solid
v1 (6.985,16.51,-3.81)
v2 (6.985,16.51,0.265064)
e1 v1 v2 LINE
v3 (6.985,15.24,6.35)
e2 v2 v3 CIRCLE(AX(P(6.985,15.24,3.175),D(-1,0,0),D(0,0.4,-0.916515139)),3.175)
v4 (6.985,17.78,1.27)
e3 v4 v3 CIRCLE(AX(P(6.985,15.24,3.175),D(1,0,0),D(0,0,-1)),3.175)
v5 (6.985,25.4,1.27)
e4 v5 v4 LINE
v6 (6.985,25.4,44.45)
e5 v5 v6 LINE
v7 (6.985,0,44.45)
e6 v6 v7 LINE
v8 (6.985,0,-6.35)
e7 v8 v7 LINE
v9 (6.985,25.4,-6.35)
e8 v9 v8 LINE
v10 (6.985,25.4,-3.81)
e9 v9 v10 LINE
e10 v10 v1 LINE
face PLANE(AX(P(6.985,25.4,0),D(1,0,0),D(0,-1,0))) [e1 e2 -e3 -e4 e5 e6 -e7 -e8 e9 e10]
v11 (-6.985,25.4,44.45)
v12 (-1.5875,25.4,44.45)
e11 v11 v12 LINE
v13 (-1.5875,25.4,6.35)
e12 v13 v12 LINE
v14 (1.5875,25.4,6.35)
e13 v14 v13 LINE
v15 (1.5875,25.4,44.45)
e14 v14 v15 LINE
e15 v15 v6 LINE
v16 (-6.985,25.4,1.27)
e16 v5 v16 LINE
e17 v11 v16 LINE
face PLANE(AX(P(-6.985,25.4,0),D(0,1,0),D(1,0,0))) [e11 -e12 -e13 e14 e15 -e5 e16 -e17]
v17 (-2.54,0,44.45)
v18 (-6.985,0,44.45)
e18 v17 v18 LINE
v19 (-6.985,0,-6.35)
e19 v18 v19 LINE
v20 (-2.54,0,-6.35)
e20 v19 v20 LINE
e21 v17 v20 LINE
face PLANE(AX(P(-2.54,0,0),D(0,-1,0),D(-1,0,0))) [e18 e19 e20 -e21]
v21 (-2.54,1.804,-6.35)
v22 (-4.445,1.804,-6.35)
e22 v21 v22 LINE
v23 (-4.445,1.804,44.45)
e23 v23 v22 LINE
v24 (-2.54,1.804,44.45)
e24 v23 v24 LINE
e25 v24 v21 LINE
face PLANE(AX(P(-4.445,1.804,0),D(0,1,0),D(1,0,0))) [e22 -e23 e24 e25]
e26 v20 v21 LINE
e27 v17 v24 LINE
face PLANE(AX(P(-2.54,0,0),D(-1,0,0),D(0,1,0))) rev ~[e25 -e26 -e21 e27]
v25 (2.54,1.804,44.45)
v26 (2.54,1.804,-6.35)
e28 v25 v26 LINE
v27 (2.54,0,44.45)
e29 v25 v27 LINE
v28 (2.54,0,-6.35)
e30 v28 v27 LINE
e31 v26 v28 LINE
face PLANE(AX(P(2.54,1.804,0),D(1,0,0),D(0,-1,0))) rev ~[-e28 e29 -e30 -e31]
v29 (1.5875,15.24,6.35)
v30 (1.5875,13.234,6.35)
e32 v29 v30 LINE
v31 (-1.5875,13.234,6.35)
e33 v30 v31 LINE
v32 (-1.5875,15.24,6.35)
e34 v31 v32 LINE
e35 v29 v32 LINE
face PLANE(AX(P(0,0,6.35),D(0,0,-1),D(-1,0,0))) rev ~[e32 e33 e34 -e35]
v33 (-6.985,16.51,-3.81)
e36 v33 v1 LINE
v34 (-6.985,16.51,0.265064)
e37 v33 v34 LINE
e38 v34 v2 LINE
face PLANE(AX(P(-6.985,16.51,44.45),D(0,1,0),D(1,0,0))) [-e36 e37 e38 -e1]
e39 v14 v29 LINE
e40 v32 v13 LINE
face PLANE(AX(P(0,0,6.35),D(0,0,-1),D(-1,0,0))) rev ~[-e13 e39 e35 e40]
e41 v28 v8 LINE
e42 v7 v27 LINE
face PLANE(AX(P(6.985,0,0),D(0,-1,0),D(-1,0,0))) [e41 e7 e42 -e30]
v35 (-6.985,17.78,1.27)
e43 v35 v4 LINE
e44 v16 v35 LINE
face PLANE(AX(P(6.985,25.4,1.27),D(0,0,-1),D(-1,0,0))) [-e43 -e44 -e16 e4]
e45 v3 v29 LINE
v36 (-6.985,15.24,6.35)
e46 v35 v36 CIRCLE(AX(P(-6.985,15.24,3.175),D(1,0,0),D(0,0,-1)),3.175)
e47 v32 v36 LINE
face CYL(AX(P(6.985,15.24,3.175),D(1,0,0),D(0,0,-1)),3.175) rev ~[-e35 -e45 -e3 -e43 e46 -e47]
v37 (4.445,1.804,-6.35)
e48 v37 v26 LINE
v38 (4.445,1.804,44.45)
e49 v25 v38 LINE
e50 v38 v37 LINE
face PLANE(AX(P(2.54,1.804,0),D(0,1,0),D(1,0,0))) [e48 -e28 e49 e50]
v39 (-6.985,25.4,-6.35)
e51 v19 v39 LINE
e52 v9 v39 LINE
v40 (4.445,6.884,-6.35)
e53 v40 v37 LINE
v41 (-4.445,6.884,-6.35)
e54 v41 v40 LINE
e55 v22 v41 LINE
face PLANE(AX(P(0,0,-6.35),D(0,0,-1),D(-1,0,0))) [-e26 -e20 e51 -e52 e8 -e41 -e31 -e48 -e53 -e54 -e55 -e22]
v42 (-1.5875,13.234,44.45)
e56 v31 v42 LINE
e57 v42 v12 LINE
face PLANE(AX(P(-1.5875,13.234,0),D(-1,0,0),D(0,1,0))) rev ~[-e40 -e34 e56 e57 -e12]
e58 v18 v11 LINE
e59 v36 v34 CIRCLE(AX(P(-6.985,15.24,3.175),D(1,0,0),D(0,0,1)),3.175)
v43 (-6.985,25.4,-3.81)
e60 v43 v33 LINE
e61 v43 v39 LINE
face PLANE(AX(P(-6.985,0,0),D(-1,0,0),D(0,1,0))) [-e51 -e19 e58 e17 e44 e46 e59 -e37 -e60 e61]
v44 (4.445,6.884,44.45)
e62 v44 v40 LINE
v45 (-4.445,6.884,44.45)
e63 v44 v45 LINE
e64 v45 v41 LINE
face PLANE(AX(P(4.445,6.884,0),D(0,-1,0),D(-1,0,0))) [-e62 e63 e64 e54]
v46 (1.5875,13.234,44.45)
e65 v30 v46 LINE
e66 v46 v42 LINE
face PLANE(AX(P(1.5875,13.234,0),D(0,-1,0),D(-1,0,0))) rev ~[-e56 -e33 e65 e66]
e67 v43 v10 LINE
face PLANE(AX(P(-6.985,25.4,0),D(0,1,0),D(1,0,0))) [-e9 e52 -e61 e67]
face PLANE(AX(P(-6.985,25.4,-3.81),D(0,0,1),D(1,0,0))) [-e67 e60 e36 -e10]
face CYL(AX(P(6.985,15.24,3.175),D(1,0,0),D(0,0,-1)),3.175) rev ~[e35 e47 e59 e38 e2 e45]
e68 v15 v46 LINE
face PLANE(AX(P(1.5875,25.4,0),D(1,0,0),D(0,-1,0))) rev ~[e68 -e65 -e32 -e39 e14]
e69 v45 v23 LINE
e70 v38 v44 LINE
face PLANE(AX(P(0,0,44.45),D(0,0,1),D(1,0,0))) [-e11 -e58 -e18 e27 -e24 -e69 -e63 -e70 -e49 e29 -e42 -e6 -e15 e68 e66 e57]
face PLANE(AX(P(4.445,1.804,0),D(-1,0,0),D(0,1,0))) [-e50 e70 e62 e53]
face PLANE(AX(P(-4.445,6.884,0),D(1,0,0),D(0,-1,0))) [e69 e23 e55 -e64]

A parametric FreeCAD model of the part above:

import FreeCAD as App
import Part
import Sketcher

V = App.Vector
Q = App.Units.Quantity

doc = App.newDocument("Part")
body = doc.addObject("PartDesign::Body", "Body")

sketch1 = doc.addObject("Sketcher::SketchObject", "Sketch")
body.addObject(sketch1)
sketch1.AttachmentSupport = (doc.XY_Plane, [""])
sketch1.MapMode = "FlatFace"
sketch1.addGeometry(Part.LineSegment(V(2.5, 1.8, 0), V(2.5, 0, 0)), False)
sketch1.addGeometry(Part.LineSegment(V(2.5, 0, 0), V(7, 0, 0)), False)
sketch1.addGeometry(Part.LineSegment(V(7, 0, 0), V(7, 25.4, 0)), False)
sketch1.addGeometry(Part.LineSegment(V(7, 25.4, 0), V(1.6, 25.4, 0)), False)
sketch1.addGeometry(Part.LineSegment(V(1.6, 25.4, 0), V(1.6, 13.2, 0)), False)
sketch1.addGeometry(Part.LineSegment(V(1.6, 13.2, 0), V(-1.6, 13.2, 0)), False)
sketch1.addGeometry(Part.LineSegment(V(-1.6, 13.2, 0), V(-1.6, 25.4, 0)), False)
sketch1.addGeometry(Part.LineSegment(V(-1.6, 25.4, 0), V(-7, 25.4, 0)), False)
sketch1.addGeometry(Part.LineSegment(V(-7, 25.4, 0), V(-7, 0, 0)), False)
sketch1.addGeometry(Part.LineSegment(V(-7, 0, 0), V(-2.5, 0, 0)), False)
sketch1.addGeometry(Part.LineSegment(V(-2.5, 0, 0), V(-2.5, 1.8, 0)), False)
sketch1.addGeometry(Part.LineSegment(V(-2.5, 1.8, 0), V(-4.4, 1.8, 0)), False)
sketch1.addGeometry(Part.LineSegment(V(-4.4, 1.8, 0), V(-4.4, 6.9, 0)), False)
sketch1.addGeometry(Part.LineSegment(V(-4.4, 6.9, 0), V(4.4, 6.9, 0)), False)
sketch1.addGeometry(Part.LineSegment(V(4.4, 6.9, 0), V(4.4, 1.8, 0)), False)
sketch1.addGeometry(Part.LineSegment(V(4.4, 1.8, 0), V(2.5, 1.8, 0)), False)
sketch1.addConstraint(Sketcher.Constraint("Coincident", 0, 2, 1, 1))
sketch1.addConstraint(Sketcher.Constraint("Coincident", 1, 2, 2, 1))
sketch1.addConstraint(Sketcher.Constraint("Coincident", 2, 2, 3, 1))
sketch1.addConstraint(Sketcher.Constraint("Coincident", 3, 2, 4, 1))
sketch1.addConstraint(Sketcher.Constraint("Coincident", 4, 2, 5, 1))
sketch1.addConstraint(Sketcher.Constraint("Coincident", 5, 2, 6, 1))
sketch1.addConstraint(Sketcher.Constraint("Coincident", 6, 2, 7, 1))
sketch1.addConstraint(Sketcher.Constraint("Coincident", 7, 2, 8, 1))
sketch1.addConstraint(Sketcher.Constraint("Coincident", 8, 2, 9, 1))
sketch1.addConstraint(Sketcher.Constraint("Coincident", 9, 2, 10, 1))
sketch1.addConstraint(Sketcher.Constraint("Coincident", 10, 2, 11, 1))
sketch1.addConstraint(Sketcher.Constraint("Coincident", 11, 2, 12, 1))
sketch1.addConstraint(Sketcher.Constraint("Coincident", 12, 2, 13, 1))
sketch1.addConstraint(Sketcher.Constraint("Coincident", 13, 2, 14, 1))
sketch1.addConstraint(Sketcher.Constraint("Coincident", 14, 2, 15, 1))
sketch1.addConstraint(Sketcher.Constraint("Coincident", 15, 2, 0, 1))
sketch1.addConstraint(Sketcher.Constraint("Vertical", 0))
sketch1.addConstraint(Sketcher.Constraint("Horizontal", 1))
sketch1.addConstraint(Sketcher.Constraint("Vertical", 2))
sketch1.addConstraint(Sketcher.Constraint("Horizontal", 3))
sketch1.addConstraint(Sketcher.Constraint("Vertical", 4))
sketch1.addConstraint(Sketcher.Constraint("Horizontal", 5))
sketch1.addConstraint(Sketcher.Constraint("Vertical", 6))
sketch1.addConstraint(Sketcher.Constraint("Horizontal", 7))
sketch1.addConstraint(Sketcher.Constraint("Vertical", 8))
sketch1.addConstraint(Sketcher.Constraint("Horizontal", 9))
sketch1.addConstraint(Sketcher.Constraint("Vertical", 10))
sketch1.addConstraint(Sketcher.Constraint("Horizontal", 11))
sketch1.addConstraint(Sketcher.Constraint("Vertical", 12))
sketch1.addConstraint(Sketcher.Constraint("Horizontal", 13))
sketch1.addConstraint(Sketcher.Constraint("Vertical", 14))
sketch1.addConstraint(Sketcher.Constraint("Horizontal", 15))
sketch1.addConstraint(Sketcher.Constraint("Symmetric", 1, 2, 8, 2, -1, 1))
sketch1.addConstraint(Sketcher.Constraint("Symmetric", 3, 2, 6, 2, -2))
sketch1.addConstraint(Sketcher.Constraint("Symmetric", 0, 2, 9, 2, -2))
sketch1.addConstraint(Sketcher.Constraint("Symmetric", 11, 2, 14, 2, -2))
sketch1.addConstraint(Sketcher.Constraint("DistanceY", 2, 1, 2, 2, Q("1 in")))
sketch1.addConstraint(Sketcher.Constraint("DistanceY", 12, 1, 12, 2, Q("0.2 in")))
sketch1.addConstraint(Sketcher.Constraint("DistanceX", 13, 1, 13, 2, Q("0.35 in")))
sketch1.addConstraint(Sketcher.Constraint("DistanceX", 9, 2, 0, 2, Q("0.2 in")))
sketch1.addConstraint(Sketcher.Constraint("DistanceX", 5, 2, 5, 1, Q("0.125 in")))
sketch1.addConstraint(Sketcher.Constraint("DistanceX", 7, 2, 2, 2, Q("0.55 in")))
sketch1.addConstraint(Sketcher.Constraint("DistanceY", 12, 2, 5, 2, Q("0.25 in")))
sketch1.addConstraint(Sketcher.Constraint("DistanceY", 0, 2, 0, 1, Q("1.804 mm")))
pad1 = doc.addObject("PartDesign::Pad", "Pad")
body.addObject(pad1)
pad1.Profile = sketch1
pad1.Length = Q("1.75 in")

sketch2 = doc.addObject("Sketcher::SketchObject", "Sketch001")
body.addObject(sketch2)
sketch2.AttachmentSupport = (doc.XY_Plane, [""])
sketch2.MapMode = "FlatFace"
sketch2.addGeometry(Part.LineSegment(V(-1.6, 13.2, 0), V(-1.6, 25.4, 0)), False)
sketch2.addGeometry(Part.LineSegment(V(-1.6, 25.4, 0), V(1.6, 25.4, 0)), False)
sketch2.addGeometry(Part.LineSegment(V(1.6, 25.4, 0), V(1.6, 13.2, 0)), False)
sketch2.addGeometry(Part.LineSegment(V(1.6, 13.2, 0), V(-1.6, 13.2, 0)), False)
sketch2.addConstraint(Sketcher.Constraint("Coincident", 0, 2, 1, 1))
sketch2.addConstraint(Sketcher.Constraint("Coincident", 1, 2, 2, 1))
sketch2.addConstraint(Sketcher.Constraint("Coincident", 2, 2, 3, 1))
sketch2.addConstraint(Sketcher.Constraint("Coincident", 3, 2, 0, 1))
sketch2.addConstraint(Sketcher.Constraint("Vertical", 0))
sketch2.addConstraint(Sketcher.Constraint("Horizontal", 1))
sketch2.addConstraint(Sketcher.Constraint("Vertical", 2))
sketch2.addConstraint(Sketcher.Constraint("Horizontal", 3))
sketch2.addConstraint(Sketcher.Constraint("DistanceY", -1, 1, 0, 2, Q("1 in")))
sketch2.addConstraint(Sketcher.Constraint("DistanceX", 1, 1, 1, 2, Q("0.125 in")))
sketch2.addConstraint(Sketcher.Constraint("DistanceX", 0, 2, -1, 1, Q("0.0625 in")))
sketch2.addConstraint(Sketcher.Constraint("DistanceY", 0, 1, 0, 2, Q("12.166 mm")))
pad2 = doc.addObject("PartDesign::Pad", "Pad001")
body.addObject(pad2)
pad2.Profile = sketch2
pad2.Length = Q("0.25 in")

sketch3 = doc.addObject("Sketcher::SketchObject", "Sketch002")
body.addObject(sketch3)
sketch3.AttachmentSupport = (doc.YZ_Plane, [""])
sketch3.MapMode = "FlatFace"
sketch3.AttachmentOffset = App.Placement(V(0, 0, 0.275 * 25.4), App.Rotation())
sketch3.addGeometry(Part.Circle(V(15.2, 3.2, 0), V(0, 0, 1), 3.2), False)
sketch3.addConstraint(Sketcher.Constraint("Diameter", 0, Q("0.25 in")))
sketch3.addConstraint(Sketcher.Constraint("DistanceY", -1, 1, 0, 3, Q("0.125 in")))
sketch3.addConstraint(Sketcher.Constraint("DistanceX", -1, 1, 0, 3, Q("0.6 in")))
pocket1 = doc.addObject("PartDesign::Pocket", "Pocket")
body.addObject(pocket1)
pocket1.Profile = sketch3
pocket1.Type = "ThroughAll"

sketch4 = doc.addObject("Sketcher::SketchObject", "Sketch003")
body.addObject(sketch4)
sketch4.AttachmentSupport = (doc.XY_Plane, [""])
sketch4.MapMode = "FlatFace"
sketch4.addGeometry(Part.LineSegment(V(4.4, 6.9, 0), V(-4.4, 6.9, 0)), False)
sketch4.addGeometry(Part.LineSegment(V(-4.4, 6.9, 0), V(-4.4, 1.8, 0)), False)
sketch4.addGeometry(Part.LineSegment(V(-4.4, 1.8, 0), V(-2.5, 1.8, 0)), False)
sketch4.addGeometry(Part.LineSegment(V(-2.5, 1.8, 0), V(-2.5, 0, 0)), False)
sketch4.addGeometry(Part.LineSegment(V(-2.5, 0, 0), V(-7, 0, 0)), False)
sketch4.addGeometry(Part.LineSegment(V(-7, 0, 0), V(-7, 25.4, 0)), False)
sketch4.addGeometry(Part.LineSegment(V(-7, 25.4, 0), V(7, 25.4, 0)), False)
sketch4.addGeometry(Part.LineSegment(V(7, 25.4, 0), V(7, 0, 0)), False)
sketch4.addGeometry(Part.LineSegment(V(7, 0, 0), V(2.5, 0, 0)), False)
sketch4.addGeometry(Part.LineSegment(V(2.5, 0, 0), V(2.5, 1.8, 0)), False)
sketch4.addGeometry(Part.LineSegment(V(2.5, 1.8, 0), V(4.4, 1.8, 0)), False)
sketch4.addGeometry(Part.LineSegment(V(4.4, 1.8, 0), V(4.4, 6.9, 0)), False)
sketch4.addConstraint(Sketcher.Constraint("Coincident", 0, 2, 1, 1))
sketch4.addConstraint(Sketcher.Constraint("Coincident", 1, 2, 2, 1))
sketch4.addConstraint(Sketcher.Constraint("Coincident", 2, 2, 3, 1))
sketch4.addConstraint(Sketcher.Constraint("Coincident", 3, 2, 4, 1))
sketch4.addConstraint(Sketcher.Constraint("Coincident", 4, 2, 5, 1))
sketch4.addConstraint(Sketcher.Constraint("Coincident", 5, 2, 6, 1))
sketch4.addConstraint(Sketcher.Constraint("Coincident", 6, 2, 7, 1))
sketch4.addConstraint(Sketcher.Constraint("Coincident", 7, 2, 8, 1))
sketch4.addConstraint(Sketcher.Constraint("Coincident", 8, 2, 9, 1))
sketch4.addConstraint(Sketcher.Constraint("Coincident", 9, 2, 10, 1))
sketch4.addConstraint(Sketcher.Constraint("Coincident", 10, 2, 11, 1))
sketch4.addConstraint(Sketcher.Constraint("Coincident", 11, 2, 0, 1))
sketch4.addConstraint(Sketcher.Constraint("Horizontal", 0))
sketch4.addConstraint(Sketcher.Constraint("Vertical", 1))
sketch4.addConstraint(Sketcher.Constraint("Horizontal", 2))
sketch4.addConstraint(Sketcher.Constraint("Vertical", 3))
sketch4.addConstraint(Sketcher.Constraint("Horizontal", 4))
sketch4.addConstraint(Sketcher.Constraint("Vertical", 5))
sketch4.addConstraint(Sketcher.Constraint("Horizontal", 6))
sketch4.addConstraint(Sketcher.Constraint("Vertical", 7))
sketch4.addConstraint(Sketcher.Constraint("Horizontal", 8))
sketch4.addConstraint(Sketcher.Constraint("Vertical", 9))
sketch4.addConstraint(Sketcher.Constraint("Horizontal", 10))
sketch4.addConstraint(Sketcher.Constraint("Vertical", 11))
sketch4.addConstraint(Sketcher.Constraint("Symmetric", 4, 2, 7, 2, -1, 1))
sketch4.addConstraint(Sketcher.Constraint("Symmetric", 3, 2, 8, 2, -2))
sketch4.addConstraint(Sketcher.Constraint("Symmetric", 1, 2, 10, 2, -2))
sketch4.addConstraint(Sketcher.Constraint("DistanceY", 5, 1, 5, 2, Q("1 in")))
sketch4.addConstraint(Sketcher.Constraint("DistanceY", 1, 2, 1, 1, Q("0.2 in")))
sketch4.addConstraint(Sketcher.Constraint("DistanceX", 0, 2, 0, 1, Q("0.35 in")))
sketch4.addConstraint(Sketcher.Constraint("DistanceX", 6, 1, 6, 2, Q("0.55 in")))
sketch4.addConstraint(Sketcher.Constraint("DistanceX", 2, 2, -1, 1, Q("0.1 in")))
sketch4.addConstraint(Sketcher.Constraint("DistanceY", 3, 2, 3, 1, Q("1.804 mm")))
pad3 = doc.addObject("PartDesign::Pad", "Pad002")
body.addObject(pad3)
pad3.Profile = sketch4
pad3.Length = Q("0.25 in")
pad3.Reversed = True

sketch5 = doc.addObject("Sketcher::SketchObject", "Sketch004")
body.addObject(sketch5)
sketch5.AttachmentSupport = (doc.XZ_Plane, [""])
sketch5.MapMode = "FlatFace"
sketch5.AttachmentOffset = App.Placement(V(0, 0, -1 * 25.4), App.Rotation())
sketch5.addGeometry(Part.LineSegment(V(7, -4, 0), V(-7, -4, 0)), False)
sketch5.addGeometry(Part.LineSegment(V(-7, -4, 0), V(-7, 1, 0)), False)
sketch5.addGeometry(Part.LineSegment(V(-7, 1, 0), V(7, 1, 0)), False)
sketch5.addGeometry(Part.LineSegment(V(7, 1, 0), V(7, -4, 0)), False)
sketch5.addConstraint(Sketcher.Constraint("Coincident", 0, 2, 1, 1))
sketch5.addConstraint(Sketcher.Constraint("Coincident", 1, 2, 2, 1))
sketch5.addConstraint(Sketcher.Constraint("Coincident", 2, 2, 3, 1))
sketch5.addConstraint(Sketcher.Constraint("Coincident", 3, 2, 0, 1))
sketch5.addConstraint(Sketcher.Constraint("Horizontal", 0))
sketch5.addConstraint(Sketcher.Constraint("Vertical", 1))
sketch5.addConstraint(Sketcher.Constraint("Horizontal", 2))
sketch5.addConstraint(Sketcher.Constraint("Vertical", 3))
sketch5.addConstraint(Sketcher.Constraint("DistanceY", 1, 1, 1, 2, Q("0.2 in")))
sketch5.addConstraint(Sketcher.Constraint("DistanceX", 0, 2, 0, 1, Q("0.55 in")))
sketch5.addConstraint(Sketcher.Constraint("DistanceY", 0, 2, -1, 1, Q("0.15 in")))
sketch5.addConstraint(Sketcher.Constraint("DistanceX", 0, 2, -1, 1, Q("0.275 in")))
pocket2 = doc.addObject("PartDesign::Pocket", "Pocket001")
body.addObject(pocket2)
pocket2.Profile = sketch5
pocket2.Length = Q("0.35 in")
pocket2.Reversed = True

doc.recompute()
